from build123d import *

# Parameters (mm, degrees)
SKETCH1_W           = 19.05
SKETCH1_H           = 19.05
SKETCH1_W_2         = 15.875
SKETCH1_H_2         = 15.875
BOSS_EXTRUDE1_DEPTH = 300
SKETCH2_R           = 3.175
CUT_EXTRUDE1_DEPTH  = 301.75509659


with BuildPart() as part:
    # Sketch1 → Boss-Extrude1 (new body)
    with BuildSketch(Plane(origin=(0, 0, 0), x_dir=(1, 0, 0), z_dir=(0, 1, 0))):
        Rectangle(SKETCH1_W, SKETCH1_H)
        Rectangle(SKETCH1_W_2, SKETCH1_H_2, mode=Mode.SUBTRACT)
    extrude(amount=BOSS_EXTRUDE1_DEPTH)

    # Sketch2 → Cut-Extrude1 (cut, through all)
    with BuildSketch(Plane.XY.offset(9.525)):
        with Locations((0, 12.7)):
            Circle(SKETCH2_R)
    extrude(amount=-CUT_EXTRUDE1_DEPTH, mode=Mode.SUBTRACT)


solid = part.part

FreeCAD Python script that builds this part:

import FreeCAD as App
import Part
import Sketcher
from FreeCAD import Vector
Q = App.Units.Quantity


def add_polygon(sketch, points):
    """Adds a closed chain of lines whose ends are joined by coincident constraints."""
    first, n = sketch.GeometryCount, len(points)
    for a, b in zip(points, points[1:] + points[:1]):
        sketch.addGeometry(Part.LineSegment(App.Vector(*a, 0), App.Vector(*b, 0)), False)
    for i in range(n):
        sketch.addConstraint(Sketcher.Constraint("Coincident", first + i, 2, first + (i + 1) % n, 1))

doc = App.newDocument("Part")
params = doc.addObject("Spreadsheet::Sheet", "Params")
for row, (alias, value) in enumerate([
    ("sketch1_width", "0.75 in"),
    ("sketch1_width2", "0.625 in"),
    ("pad1_length", "300 mm"),
    ("sketch2_diameter", "0.25 in"),
], start=1):
    params.set(f"A{row}", alias)
    params.set(f"B{row}", "=" + value)
    params.setAlias(f"B{row}", alias)

body = doc.addObject("PartDesign::Body", "Body")

# Sketch on XZ plane
sketch1 = body.newObject("Sketcher::SketchObject", "Sketch")
sketch1.AttachmentSupport = (doc.getObject("XZ_Plane"), [""])
sketch1.MapMode = "FlatFace"
add_polygon(sketch1, [(-10, -10), (-10, 10), (10, 10), (10, -10)])  # lines 0-3
add_polygon(sketch1, [(8, 8), (-8, 8), (-8, -8), (8, -8)])  # lines 4-7
sketch1.addConstraint([
    Sketcher.Constraint("Vertical", 0),
    Sketcher.Constraint("Horizontal", 1),
    Sketcher.Constraint("Vertical", 2),
    Sketcher.Constraint("Horizontal", 3),
    Sketcher.Constraint("Horizontal", 4),
    Sketcher.Constraint("Vertical", 5),
    Sketcher.Constraint("Horizontal", 6),
    Sketcher.Constraint("Vertical", 7),
    Sketcher.Constraint("Symmetric", 0, 2, 2, 2, -1, 1),
    Sketcher.Constraint("Symmetric", 4, 2, 6, 2, -1, 1),
    Sketcher.Constraint("Equal", 3, 0),
    Sketcher.Constraint("Equal", 6, 5),
    Sketcher.Constraint("DistanceX", 1, 1, 1, 2, Q("0.75 in")),
    Sketcher.Constraint("DistanceX", 4, 2, 4, 1, Q("0.625 in")),
])
sketch1.setExpression("Constraints[20]", "Params.sketch1_width")
sketch1.setExpression("Constraints[21]", "Params.sketch1_width2")
pad1 = body.newObject("PartDesign::Pad", "Pad")
pad1.Profile = sketch1
pad1.setExpression("Length", "Params.pad1_length")
pad1.Reversed = True

# Sketch on XY plane
sketch2 = body.newObject("Sketcher::SketchObject", "Sketch001")
sketch2.AttachmentSupport = (doc.getObject("XY_Plane"), [""])
sketch2.MapMode = "FlatFace"
sketch2.AttachmentOffset = App.Placement(Vector(0, 0, 0.375 * 25.4), App.Rotation())
sketch2.addGeometry(Part.Circle(Vector(0, 12.7, 0), Vector(0, 0, 1), 3.2), False)
sketch2.addConstraint([
    Sketcher.Constraint("PointOnObject", 0, 3, -2),
    Sketcher.Constraint("Diameter", 0, Q("0.25 in")),
    Sketcher.Constraint("DistanceY", -1, 1, 0, 3, Q("0.5 in")),
])
sketch2.setExpression("Constraints[1]", "Params.sketch2_diameter")
pocket1 = body.newObject("PartDesign::Pocket", "Pocket")
pocket1.Profile = sketch2
pocket1.Type = "ThroughAll"

doc.recompute()
